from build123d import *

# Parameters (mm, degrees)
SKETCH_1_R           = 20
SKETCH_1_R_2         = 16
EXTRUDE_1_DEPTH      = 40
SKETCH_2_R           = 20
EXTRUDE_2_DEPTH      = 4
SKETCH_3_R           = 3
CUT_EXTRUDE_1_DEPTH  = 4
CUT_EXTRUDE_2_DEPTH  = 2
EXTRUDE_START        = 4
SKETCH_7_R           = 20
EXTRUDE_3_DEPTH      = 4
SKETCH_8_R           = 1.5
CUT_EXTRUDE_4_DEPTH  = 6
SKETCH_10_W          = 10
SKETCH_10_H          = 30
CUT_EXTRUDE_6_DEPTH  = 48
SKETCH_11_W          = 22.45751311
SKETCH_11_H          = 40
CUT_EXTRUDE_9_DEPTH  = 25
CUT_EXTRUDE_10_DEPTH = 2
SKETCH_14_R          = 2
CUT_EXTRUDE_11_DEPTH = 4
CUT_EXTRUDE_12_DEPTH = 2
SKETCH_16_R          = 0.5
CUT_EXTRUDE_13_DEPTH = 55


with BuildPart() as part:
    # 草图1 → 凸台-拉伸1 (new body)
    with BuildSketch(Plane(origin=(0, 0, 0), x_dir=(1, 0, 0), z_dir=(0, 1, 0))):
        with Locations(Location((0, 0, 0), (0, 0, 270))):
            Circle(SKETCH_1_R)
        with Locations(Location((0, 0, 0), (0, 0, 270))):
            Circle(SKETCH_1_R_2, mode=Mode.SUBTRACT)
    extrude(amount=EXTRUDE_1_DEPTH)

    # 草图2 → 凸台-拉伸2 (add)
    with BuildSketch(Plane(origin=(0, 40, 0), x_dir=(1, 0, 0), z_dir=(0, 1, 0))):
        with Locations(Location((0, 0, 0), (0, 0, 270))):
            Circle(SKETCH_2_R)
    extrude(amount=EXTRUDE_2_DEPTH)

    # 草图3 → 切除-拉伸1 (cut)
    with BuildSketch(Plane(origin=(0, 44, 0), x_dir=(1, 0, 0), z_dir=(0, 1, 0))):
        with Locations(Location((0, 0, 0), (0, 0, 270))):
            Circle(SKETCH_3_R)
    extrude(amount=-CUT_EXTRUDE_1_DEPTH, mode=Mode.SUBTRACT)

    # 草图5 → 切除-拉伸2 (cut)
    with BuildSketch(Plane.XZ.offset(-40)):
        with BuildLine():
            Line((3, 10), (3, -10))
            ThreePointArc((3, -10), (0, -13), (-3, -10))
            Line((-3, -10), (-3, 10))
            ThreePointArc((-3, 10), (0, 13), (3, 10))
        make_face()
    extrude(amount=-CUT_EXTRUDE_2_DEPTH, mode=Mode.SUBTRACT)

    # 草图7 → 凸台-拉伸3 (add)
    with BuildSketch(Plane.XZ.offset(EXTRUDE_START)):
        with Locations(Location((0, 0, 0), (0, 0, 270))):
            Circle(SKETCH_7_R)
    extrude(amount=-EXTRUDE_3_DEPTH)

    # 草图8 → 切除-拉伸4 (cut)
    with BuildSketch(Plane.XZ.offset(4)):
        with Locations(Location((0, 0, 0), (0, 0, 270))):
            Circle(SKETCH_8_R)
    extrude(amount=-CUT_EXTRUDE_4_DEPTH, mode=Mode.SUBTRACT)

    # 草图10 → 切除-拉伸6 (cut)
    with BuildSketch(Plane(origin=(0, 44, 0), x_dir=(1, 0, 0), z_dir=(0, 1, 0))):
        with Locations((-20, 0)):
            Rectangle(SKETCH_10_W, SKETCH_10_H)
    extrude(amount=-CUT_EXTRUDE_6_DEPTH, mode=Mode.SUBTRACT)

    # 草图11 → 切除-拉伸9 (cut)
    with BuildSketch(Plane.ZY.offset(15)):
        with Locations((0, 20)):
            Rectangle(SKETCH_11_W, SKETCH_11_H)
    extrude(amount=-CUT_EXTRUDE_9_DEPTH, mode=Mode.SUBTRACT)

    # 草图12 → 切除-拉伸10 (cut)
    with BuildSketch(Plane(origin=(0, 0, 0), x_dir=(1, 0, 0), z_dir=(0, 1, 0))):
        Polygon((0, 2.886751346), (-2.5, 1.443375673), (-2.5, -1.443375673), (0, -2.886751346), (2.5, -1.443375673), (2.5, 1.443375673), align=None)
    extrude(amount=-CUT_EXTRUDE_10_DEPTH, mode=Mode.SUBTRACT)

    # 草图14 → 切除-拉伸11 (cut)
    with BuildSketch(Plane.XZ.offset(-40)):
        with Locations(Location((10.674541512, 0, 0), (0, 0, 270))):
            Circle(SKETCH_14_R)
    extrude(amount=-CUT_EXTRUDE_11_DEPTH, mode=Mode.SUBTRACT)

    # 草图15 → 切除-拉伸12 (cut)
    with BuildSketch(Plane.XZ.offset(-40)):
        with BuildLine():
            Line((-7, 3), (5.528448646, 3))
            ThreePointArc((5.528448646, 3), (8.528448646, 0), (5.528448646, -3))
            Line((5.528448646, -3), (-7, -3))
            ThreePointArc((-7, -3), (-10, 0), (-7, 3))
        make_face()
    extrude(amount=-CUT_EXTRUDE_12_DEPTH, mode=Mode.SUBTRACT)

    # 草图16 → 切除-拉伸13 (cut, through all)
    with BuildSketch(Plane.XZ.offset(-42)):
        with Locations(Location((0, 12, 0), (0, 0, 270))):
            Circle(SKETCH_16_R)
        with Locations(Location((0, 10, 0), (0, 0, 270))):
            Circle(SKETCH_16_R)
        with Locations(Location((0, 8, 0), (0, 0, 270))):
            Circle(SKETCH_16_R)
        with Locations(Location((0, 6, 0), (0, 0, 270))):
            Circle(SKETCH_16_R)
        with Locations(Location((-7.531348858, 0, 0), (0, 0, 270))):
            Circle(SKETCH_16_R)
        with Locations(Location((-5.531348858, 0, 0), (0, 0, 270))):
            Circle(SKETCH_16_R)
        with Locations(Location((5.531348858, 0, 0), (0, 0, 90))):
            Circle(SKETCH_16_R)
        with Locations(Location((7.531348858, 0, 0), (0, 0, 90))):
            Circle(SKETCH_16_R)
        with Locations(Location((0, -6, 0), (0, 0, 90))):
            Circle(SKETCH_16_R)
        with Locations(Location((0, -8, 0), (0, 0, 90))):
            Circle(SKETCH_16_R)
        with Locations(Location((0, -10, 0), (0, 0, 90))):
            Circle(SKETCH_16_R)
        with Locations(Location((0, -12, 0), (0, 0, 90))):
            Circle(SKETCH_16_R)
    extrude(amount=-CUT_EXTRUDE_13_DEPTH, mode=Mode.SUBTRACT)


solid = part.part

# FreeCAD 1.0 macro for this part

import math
import FreeCAD as App
import Part
import Sketcher

V = App.Vector
Q = App.Units.Quantity

doc = App.newDocument("Part")
body = doc.addObject("PartDesign::Body", "Body")

# Sketch on XZ plane
sketch1 = body.newObject("Sketcher::SketchObject", "Sketch")
sketch1.AttachmentSupport = (doc.getObject("XZ_Plane"), [""])
sketch1.MapMode = "FlatFace"
sketch1.addGeometry([
    Part.Circle(V(0, 0, 0), V(0, 0, 1), 20),
    Part.Circle(V(0, 0, 0), V(0, 0, 1), 16),
], False)
sketch1.addConstraint([
    Sketcher.Constraint("Coincident", 0, 3, -1, 1),
    Sketcher.Constraint("Coincident", 1, 3, -1, 1),
    Sketcher.Constraint("Diameter", 0, 40.0),
    Sketcher.Constraint("Diameter", 1, 32.0),
])
pad1 = body.newObject("PartDesign::Pad", "Pad")
pad1.Profile = sketch1
pad1.Length = 40
pad1.Reversed = True

# Sketch on XZ plane
sketch2 = body.newObject("Sketcher::SketchObject", "Sketch001")
sketch2.AttachmentSupport = (doc.getObject("XZ_Plane"), [""])
sketch2.MapMode = "FlatFace"
sketch2.AttachmentOffset = App.Placement(V(0, 0, -40), App.Rotation())
sketch2.addGeometry(Part.Circle(V(0, 0, 0), V(0, 0, 1), 20), False)
sketch2.addConstraint([
    Sketcher.Constraint("Coincident", 0, 3, -1, 1),
    Sketcher.Constraint("Diameter", 0, 40.0),
])
pad2 = body.newObject("PartDesign::Pad", "Pad001")
pad2.Profile = sketch2
pad2.Length = 4
pad2.Reversed = True

# Sketch on XZ plane
sketch3 = body.newObject("Sketcher::SketchObject", "Sketch002")
sketch3.AttachmentSupport = (doc.getObject("XZ_Plane"), [""])
sketch3.MapMode = "FlatFace"
sketch3.AttachmentOffset = App.Placement(V(0, 0, -44), App.Rotation())
sketch3.addGeometry(Part.Circle(V(0, 0, 0), V(0, 0, 1), 3), False)
sketch3.addConstraint([
    Sketcher.Constraint("Coincident", 0, 3, -1, 1),
    Sketcher.Constraint("Diameter", 0, 6.0),
])
pocket1 = body.newObject("PartDesign::Pocket", "Pocket")
pocket1.Profile = sketch3
pocket1.Length = 4
pocket1.Reversed = True

# Sketch on XZ plane
sketch4 = body.newObject("Sketcher::SketchObject", "Sketch003")
sketch4.AttachmentSupport = (doc.getObject("XZ_Plane"), [""])
sketch4.MapMode = "FlatFace"
sketch4.AttachmentOffset = App.Placement(V(0, 0, -40), App.Rotation())
sketch4.addGeometry([
    Part.LineSegment(V(3, -10, 0), V(3, 10, 0)),
    Part.ArcOfCircle(Part.Circle(V(0, 10, 0), V(0, 0, 1), 3), math.radians(0), math.radians(180)),
    Part.LineSegment(V(-3, 10, 0), V(-3, -10, 0)),
    Part.ArcOfCircle(Part.Circle(V(0, -10, 0), V(0, 0, 1), 3), math.radians(180), math.radians(360)),
], False)
sketch4.addConstraint([
    Sketcher.Constraint("Tangent", 0, 2, 1, 1),
    Sketcher.Constraint("Tangent", 1, 2, 2, 1),
    Sketcher.Constraint("Tangent", 2, 2, 3, 1),
    Sketcher.Constraint("Tangent", 3, 2, 0, 1),
    Sketcher.Constraint("Vertical", 0),
    Sketcher.Constraint("Vertical", 2),
    Sketcher.Constraint("Symmetric", 1, 3, 3, 3, -1, 1),
    Sketcher.Constraint("Radius", 1, 3.0),
    Sketcher.Constraint("DistanceY", 0, 1, 0, 2, 20.0),
])
pocket2 = body.newObject("PartDesign::Pocket", "Pocket001")
pocket2.Profile = sketch4
pocket2.Length = 2

# Sketch on XZ plane
sketch5 = body.newObject("Sketcher::SketchObject", "Sketch004")
sketch5.AttachmentSupport = (doc.getObject("XZ_Plane"), [""])
sketch5.MapMode = "FlatFace"
sketch5.AttachmentOffset = App.Placement(V(0, 0, 4), App.Rotation())
sketch5.addGeometry(Part.Circle(V(0, 0, 0), V(0, 0, 1), 20), False)
sketch5.addConstraint([
    Sketcher.Constraint("Coincident", 0, 3, -1, 1),
    Sketcher.Constraint("Diameter", 0, 40.0),
])
pad3 = body.newObject("PartDesign::Pad", "Pad002")
pad3.Profile = sketch5
pad3.Length = 4
pad3.Reversed = True

# Sketch on XZ plane
sketch6 = body.newObject("Sketcher::SketchObject", "Sketch005")
sketch6.AttachmentSupport = (doc.getObject("XZ_Plane"), [""])
sketch6.MapMode = "FlatFace"
sketch6.AttachmentOffset = App.Placement(V(0, 0, 4), App.Rotation())
sketch6.addGeometry(Part.Circle(V(0, 0, 0), V(0, 0, 1), 1.5), False)
sketch6.addConstraint([
    Sketcher.Constraint("Coincident", 0, 3, -1, 1),
    Sketcher.Constraint("Diameter", 0, 3.0),
])
pocket3 = body.newObject("PartDesign::Pocket", "Pocket002")
pocket3.Profile = sketch6
pocket3.Length = 6

# Sketch on XZ plane
sketch7 = body.newObject("Sketcher::SketchObject", "Sketch006")
sketch7.AttachmentSupport = (doc.getObject("XZ_Plane"), [""])
sketch7.MapMode = "FlatFace"
sketch7.AttachmentOffset = App.Placement(V(0, 0, -44), App.Rotation())
sketch7.addGeometry([
    Part.LineSegment(V(-25, -15, 0), V(-25, 15, 0)),
    Part.LineSegment(V(-25, 15, 0), V(-15, 15, 0)),
    Part.LineSegment(V(-15, 15, 0), V(-15, -15, 0)),
    Part.LineSegment(V(-15, -15, 0), V(-25, -15, 0)),
], False)
sketch7.addConstraint([
    Sketcher.Constraint("Coincident", 0, 2, 1, 1),
    Sketcher.Constraint("Coincident", 1, 2, 2, 1),
    Sketcher.Constraint("Coincident", 2, 2, 3, 1),
    Sketcher.Constraint("Coincident", 3, 2, 0, 1),
    Sketcher.Constraint("Vertical", 0),
    Sketcher.Constraint("Horizontal", 1),
    Sketcher.Constraint("Vertical", 2),
    Sketcher.Constraint("Horizontal", 3),
    Sketcher.Constraint("DistanceX", 1, 1, 1, 2, 10.0),
    Sketcher.Constraint("DistanceY", 0, 1, 0, 2, 30.0),
    Sketcher.Constraint("DistanceX", 0, 2, -1, 1, 25.0),
    Sketcher.Constraint("DistanceY", -1, 1, 0, 2, 15.0),
])
pocket4 = body.newObject("PartDesign::Pocket", "Pocket003")
pocket4.Profile = sketch7
pocket4.Length = 48
pocket4.Reversed = True

# Sketch on YZ plane
sketch8 = body.newObject("Sketcher::SketchObject", "Sketch007")
sketch8.AttachmentSupport = (doc.getObject("YZ_Plane"), [""])
sketch8.MapMode = "FlatFace"
sketch8.AttachmentOffset = App.Placement(V(0, 0, -15), App.Rotation())
sketch8.addGeometry([
    Part.LineSegment(V(40, -11, 0), V(0, -11, 0)),
    Part.LineSegment(V(0, -11, 0), V(0, 11, 0)),
    Part.LineSegment(V(0, 11, 0), V(40, 11, 0)),
    Part.LineSegment(V(40, 11, 0), V(40, -11, 0)),
], False)
sketch8.addConstraint([
    Sketcher.Constraint("Coincident", 0, 2, 1, 1),
    Sketcher.Constraint("Coincident", 1, 2, 2, 1),
    Sketcher.Constraint("Coincident", 2, 2, 3, 1),
    Sketcher.Constraint("Coincident", 3, 2, 0, 1),
    Sketcher.Constraint("Horizontal", 0),
    Sketcher.Constraint("Vertical", 1),
    Sketcher.Constraint("Horizontal", 2),
    Sketcher.Constraint("Vertical", 3),
    Sketcher.Constraint("Symmetric", 0, 2, 1, 2, -1, 1),
    Sketcher.Constraint("DistanceX", 0, 2, 0, 1, 40.0),
    Sketcher.Constraint("DistanceY", 1, 1, 1, 2, 22.457513),
])
pocket5 = body.newObject("PartDesign::Pocket", "Pocket004")
pocket5.Profile = sketch8
pocket5.Length = 25
pocket5.Reversed = True

# Sketch on XZ plane
sketch9 = body.newObject("Sketcher::SketchObject", "Sketch008")
sketch9.AttachmentSupport = (doc.getObject("XZ_Plane"), [""])
sketch9.MapMode = "FlatFace"
sketch9.addGeometry([
    Part.LineSegment(V(0, -2.9, 0), V(-2.5, -1.4, 0)),  # 0
    Part.LineSegment(V(-2.5, -1.4, 0), V(-2.5, 1.4, 0)),  # 1
    Part.LineSegment(V(-2.5, 1.4, 0), V(0, 2.9, 0)),  # 2
    Part.LineSegment(V(0, 2.9, 0), V(2.5, 1.4, 0)),  # 3
    Part.LineSegment(V(2.5, 1.4, 0), V(2.5, -1.4, 0)),  # 4
    Part.LineSegment(V(2.5, -1.4, 0), V(0, -2.9, 0)),  # 5
], False)
sketch9.addConstraint([
    Sketcher.Constraint("Coincident", 0, 2, 1, 1),
    Sketcher.Constraint("Coincident", 1, 2, 2, 1),
    Sketcher.Constraint("Coincident", 2, 2, 3, 1),
    Sketcher.Constraint("Coincident", 3, 2, 4, 1),
    Sketcher.Constraint("Coincident", 4, 2, 5, 1),
    Sketcher.Constraint("Coincident", 5, 2, 0, 1),
    Sketcher.Constraint("Vertical", 1),
    Sketcher.Constraint("Vertical", 4),
    Sketcher.Constraint("Symmetric", 0, 2, 3, 2, -1, 1),
    Sketcher.Constraint("Symmetric", 2, 2, 5, 2, -1, 1),
    Sketcher.Constraint("PointOnObject", 2, 2, -2),
    Sketcher.Constraint("Parallel", 2, 5),
    Sketcher.Constraint("Horizontal", 1, 2, 3, 2),
    Sketcher.Constraint("Angle", 0, Q("150 deg")),
    Sketcher.Constraint("DistanceX", 1, 2, 3, 2, 5.0),
    Sketcher.Constraint("DistanceY", 1, 1, 1, 2, 2.886751),
])
pocket6 = body.newObject("PartDesign::Pocket", "Pocket005")
pocket6.Profile = sketch9
pocket6.Length = 2
pocket6.Reversed = True

# Sketch on XZ plane
sketch10 = body.newObject("Sketcher::SketchObject", "Sketch009")
sketch10.AttachmentSupport = (doc.getObject("XZ_Plane"), [""])
sketch10.MapMode = "FlatFace"
sketch10.AttachmentOffset = App.Placement(V(0, 0, -40), App.Rotation())
sketch10.addGeometry(Part.Circle(V(10.7, 0, 0), V(0, 0, 1), 2), False)
sketch10.addConstraint([
    Sketcher.Constraint("PointOnObject", 0, 3, -1),
    Sketcher.Constraint("Diameter", 0, 4.0),
    Sketcher.Constraint("DistanceX", -1, 1, 0, 3, 10.674542),
])
pocket7 = body.newObject("PartDesign::Pocket", "Pocket006")
pocket7.Profile = sketch10
pocket7.Length = 4

# Sketch on XZ plane
sketch11 = body.newObject("Sketcher::SketchObject", "Sketch010")
sketch11.AttachmentSupport = (doc.getObject("XZ_Plane"), [""])
sketch11.MapMode = "FlatFace"
sketch11.AttachmentOffset = App.Placement(V(0, 0, -40), App.Rotation())
sketch11.addGeometry([
    Part.LineSegment(V(5.5, 3, 0), V(-7, 3, 0)),
    Part.ArcOfCircle(Part.Circle(V(-7, 0, 0), V(0, 0, 1), 3), math.radians(90), math.radians(270)),
    Part.LineSegment(V(-7, -3, 0), V(5.5, -3, 0)),
    Part.ArcOfCircle(Part.Circle(V(5.5, 0, 0), V(0, 0, 1), 3), math.radians(-90), math.radians(90)),
], False)
sketch11.addConstraint([
    Sketcher.Constraint("Tangent", 0, 2, 1, 1),
    Sketcher.Constraint("Tangent", 1, 2, 2, 1),
    Sketcher.Constraint("Tangent", 2, 2, 3, 1),
    Sketcher.Constraint("Tangent", 3, 2, 0, 1),
    Sketcher.Constraint("Horizontal", 0),
    Sketcher.Constraint("Horizontal", 2),
    Sketcher.Constraint("PointOnObject", 1, 3, -1),
    Sketcher.Constraint("Radius", 1, 3.0),
    Sketcher.Constraint("DistanceX", 1, 3, -1, 1, 7.0),
    Sketcher.Constraint("DistanceX", 0, 2, 0, 1, 12.528449),
])
pocket8 = body.newObject("PartDesign::Pocket", "Pocket007")
pocket8.Profile = sketch11
pocket8.Length = 2

# Sketch on XZ plane
sketch12 = body.newObject("Sketcher::SketchObject", "Sketch011")
sketch12.AttachmentSupport = (doc.getObject("XZ_Plane"), [""])
sketch12.MapMode = "FlatFace"
sketch12.AttachmentOffset = App.Placement(V(0, 0, -42), App.Rotation())
sketch12.addGeometry([
    Part.Circle(V(0, 12, 0), V(0, 0, 1), 0.5),  # 0
    Part.Circle(V(0, 10, 0), V(0, 0, 1), 0.5),  # 1
    Part.Circle(V(0, 8, 0), V(0, 0, 1), 0.5),  # 2
    Part.Circle(V(0, 6, 0), V(0, 0, 1), 0.5),  # 3
    Part.Circle(V(-7.5, 0, 0), V(0, 0, 1), 0.5),  # 4
    Part.Circle(V(-5.5, 0, 0), V(0, 0, 1), 0.5),  # 5
    Part.Circle(V(5.5, 0, 0), V(0, 0, 1), 0.5),  # 6
    Part.Circle(V(7.5, 0, 0), V(0, 0, 1), 0.5),  # 7
    Part.Circle(V(0, -6, 0), V(0, 0, 1), 0.5),  # 8
    Part.Circle(V(0, -8, 0), V(0, 0, 1), 0.5),  # 9
    Part.Circle(V(0, -10, 0), V(0, 0, 1), 0.5),  # 10
    Part.Circle(V(0, -12, 0), V(0, 0, 1), 0.5),  # 11
], False)
sketch12.addConstraint([
    Sketcher.Constraint("Equal", 0, 1),
    Sketcher.Constraint("Equal", 1, 2),
    Sketcher.Constraint("Equal", 2, 3),
    Sketcher.Constraint("Equal", 3, 4),
    Sketcher.Constraint("Equal", 4, 5),
    Sketcher.Constraint("Equal", 5, 6),
    Sketcher.Constraint("Equal", 6, 7),
    Sketcher.Constraint("Equal", 7, 8),
    Sketcher.Constraint("Equal", 8, 9),
    Sketcher.Constraint("Equal", 9, 10),
    Sketcher.Constraint("Equal", 10, 11),
    Sketcher.Constraint("Symmetric", 5, 3, 6, 3, -1, 1),
    Sketcher.Constraint("Symmetric", 4, 3, 7, 3, -1, 1),
    Sketcher.Constraint("Symmetric", 3, 3, 8, 3, -1, 1),
    Sketcher.Constraint("Symmetric", 2, 3, 9, 3, -1, 1),
    Sketcher.Constraint("Symmetric", 1, 3, 10, 3, -1, 1),
    Sketcher.Constraint("Symmetric", 0, 3, 11, 3, -1, 1),
    Sketcher.Constraint("PointOnObject", 0, 3, -2),
    Sketcher.Constraint("PointOnObject", 1, 3, -2),
    Sketcher.Constraint("PointOnObject", 2, 3, -2),
    Sketcher.Constraint("PointOnObject", 3, 3, -2),
    Sketcher.Constraint("PointOnObject", 4, 3, -1),
    Sketcher.Constraint("PointOnObject", 5, 3, -1),
    Sketcher.Constraint("Diameter", 0, 1.0),
    Sketcher.Constraint("DistanceY", -1, 1, 0, 3, 12.0),
    Sketcher.Constraint("DistanceY", -1, 1, 1, 3, 10.0),
    Sketcher.Constraint("DistanceY", -1, 1, 2, 3, 8.0),
    Sketcher.Constraint("DistanceY", -1, 1, 3, 3, 6.0),
    Sketcher.Constraint("DistanceX", 4, 3, 5, 3, 2.0),
    Sketcher.Constraint("DistanceX", 4, 3, -1, 1, 7.531349),
])
pocket9 = body.newObject("PartDesign::Pocket", "Pocket008")
pocket9.Profile = sketch12
pocket9.Type = "ThroughAll"

doc.recompute()
